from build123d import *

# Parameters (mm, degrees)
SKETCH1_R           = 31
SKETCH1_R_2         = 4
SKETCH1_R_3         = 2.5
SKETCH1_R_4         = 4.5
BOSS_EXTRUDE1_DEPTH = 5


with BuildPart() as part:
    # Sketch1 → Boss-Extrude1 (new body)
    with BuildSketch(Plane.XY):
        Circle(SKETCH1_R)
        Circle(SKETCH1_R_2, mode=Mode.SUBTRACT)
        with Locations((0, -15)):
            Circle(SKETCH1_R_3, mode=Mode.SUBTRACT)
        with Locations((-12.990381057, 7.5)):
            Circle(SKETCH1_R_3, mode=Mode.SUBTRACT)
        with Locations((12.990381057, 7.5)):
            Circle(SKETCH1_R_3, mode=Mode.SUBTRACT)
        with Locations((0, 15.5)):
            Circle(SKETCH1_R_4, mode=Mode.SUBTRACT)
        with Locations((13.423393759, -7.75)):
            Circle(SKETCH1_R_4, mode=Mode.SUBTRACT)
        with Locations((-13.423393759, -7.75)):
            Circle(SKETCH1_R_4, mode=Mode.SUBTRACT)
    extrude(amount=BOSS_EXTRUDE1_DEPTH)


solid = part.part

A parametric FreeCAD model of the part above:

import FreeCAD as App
import Part
import Sketcher
from FreeCAD import Vector

doc = App.newDocument("Part")
body = doc.addObject("PartDesign::Body", "Body")

# Sketch on XY plane
sketch1 = doc.addObject("Sketcher::SketchObject", "Sketch")
body.addObject(sketch1)
sketch1.AttachmentSupport = (doc.XY_Plane, [""])
sketch1.MapMode = "FlatFace"
sketch1.addGeometry(Part.Circle(Vector(0, 0, 0), Vector(0, 0, 1), 31), False)
sketch1.addGeometry(Part.Circle(Vector(-13.4, -7.8, 0), Vector(0, 0, 1), 4.5), False)
sketch1.addGeometry(Part.Circle(Vector(0, -15, 0), Vector(0, 0, 1), 2.5), False)
sketch1.addGeometry(Part.Circle(Vector(0, 0, 0), Vector(0, 0, 1), 4), False)
sketch1.addGeometry(Part.Circle(Vector(13.4, -7.8, 0), Vector(0, 0, 1), 4.5), False)
sketch1.addGeometry(Part.Circle(Vector(-13, 7.5, 0), Vector(0, 0, 1), 2.5), False)
sketch1.addGeometry(Part.Circle(Vector(13, 7.5, 0), Vector(0, 0, 1), 2.5), False)
sketch1.addGeometry(Part.Circle(Vector(0, 15.5, 0), Vector(0, 0, 1), 4.5), False)
sketch1.addConstraint(Sketcher.Constraint("Coincident", 0, 3, -1, 1))
sketch1.addConstraint(Sketcher.Constraint("Coincident", 3, 3, -1, 1))
sketch1.addConstraint(Sketcher.Constraint("Equal", 1, 4))
sketch1.addConstraint(Sketcher.Constraint("Equal", 2, 5))
sketch1.addConstraint(Sketcher.Constraint("Equal", 5, 6))
sketch1.addConstraint(Sketcher.Constraint("Equal", 4, 7))
sketch1.addConstraint(Sketcher.Constraint("Symmetric", 1, 3, 4, 3, -2))
sketch1.addConstraint(Sketcher.Constraint("Symmetric", 5, 3, 6, 3, -2))
sketch1.addConstraint(Sketcher.Constraint("PointOnObject", 2, 3, -2))
sketch1.addConstraint(Sketcher.Constraint("PointOnObject", 7, 3, -2))
sketch1.addConstraint(Sketcher.Constraint("Diameter", 0, 62.0))
sketch1.addConstraint(Sketcher.Constraint("Diameter", 1, 9.0))
sketch1.addConstraint(Sketcher.Constraint("Diameter", 2, 5.0))
sketch1.addConstraint(Sketcher.Constraint("Diameter", 3, 8.0))
sketch1.addConstraint(Sketcher.Constraint("DistanceY", 2, 3, -1, 1, 15.0))
sketch1.addConstraint(Sketcher.Constraint("DistanceY", 5, 3, 7, 3, 8.0))
sketch1.addConstraint(Sketcher.Constraint("DistanceY", -1, 1, 5, 3, 7.5))
sketch1.addConstraint(Sketcher.Constraint("DistanceY", 1, 3, -1, 1, 7.75))
sketch1.addConstraint(Sketcher.Constraint("DistanceX", 5, 3, -1, 1, 12.990381))
sketch1.addConstraint(Sketcher.Constraint("DistanceX", 1, 3, -1, 1, 13.423394))
pad1 = doc.addObject("PartDesign::Pad", "Pad")
body.addObject(pad1)
pad1.Profile = sketch1
pad1.Length = 5

doc.recompute()
